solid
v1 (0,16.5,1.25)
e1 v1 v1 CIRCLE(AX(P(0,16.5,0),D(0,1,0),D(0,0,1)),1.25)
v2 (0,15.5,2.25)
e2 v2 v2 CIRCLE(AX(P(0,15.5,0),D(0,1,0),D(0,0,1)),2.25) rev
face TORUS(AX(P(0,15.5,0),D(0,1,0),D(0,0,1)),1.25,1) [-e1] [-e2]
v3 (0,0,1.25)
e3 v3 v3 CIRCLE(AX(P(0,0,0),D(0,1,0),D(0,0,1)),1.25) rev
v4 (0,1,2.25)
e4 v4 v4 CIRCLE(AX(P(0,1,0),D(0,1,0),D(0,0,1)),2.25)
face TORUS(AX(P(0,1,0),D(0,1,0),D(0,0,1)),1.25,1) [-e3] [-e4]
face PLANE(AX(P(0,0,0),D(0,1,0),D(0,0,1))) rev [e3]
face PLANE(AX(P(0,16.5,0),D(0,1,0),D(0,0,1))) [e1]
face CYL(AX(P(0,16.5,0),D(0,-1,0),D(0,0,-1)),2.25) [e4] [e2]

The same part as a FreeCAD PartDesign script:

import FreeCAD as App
import Part
import Sketcher

V = App.Vector


def edges_at(feature, points):
    """Names of the edges that pass closest to the given points."""
    edges = feature.Shape.Edges
    near = lambda p: min(range(len(edges)), key=lambda i: edges[i].distToShape(Part.Vertex(*p))[0])
    return sorted({f"Edge{near(p) + 1}" for p in points})

doc = App.newDocument("Part")
params = doc.addObject("Spreadsheet::Sheet", "Params")
for row, (alias, value) in enumerate([
    ("sketch1_diameter", "4.5 mm"),
    ("pad1_length", "16.5 mm"),
    ("fillet_radius", "1 mm"),
], start=1):
    params.set(f"A{row}", alias)
    params.set(f"B{row}", "=" + value)
    params.setAlias(f"B{row}", alias)

body = doc.addObject("PartDesign::Body", "Body")

sketch1 = doc.addObject("Sketcher::SketchObject", "Sketch")
body.addObject(sketch1)
sketch1.AttachmentSupport = (doc.XZ_Plane, [""])
sketch1.MapMode = "FlatFace"
sketch1.addGeometry(Part.Circle(V(0, 0, 0), V(0, 0, 1), 2.2), False)
sketch1.addConstraint(Sketcher.Constraint("Coincident", 0, 3, -1, 1))
sketch1.addConstraint(Sketcher.Constraint("Diameter", 0, 4.5))
sketch1.setExpression("Constraints[1]", "Params.sketch1_diameter")
pad1 = doc.addObject("PartDesign::Pad", "Pad")
body.addObject(pad1)
pad1.Profile = sketch1
pad1.setExpression("Length", "Params.pad1_length")
pad1.Reversed = True
doc.recompute()

fillet = doc.addObject("PartDesign::Fillet", "Fillet")
body.addObject(fillet)
fillet.Base = (pad1, edges_at(pad1, [(-2.25, 0, 0), (-2.25, 16.5, 0)]))
fillet.setExpression("Radius", "Params.fillet_radius")

doc.recompute()
